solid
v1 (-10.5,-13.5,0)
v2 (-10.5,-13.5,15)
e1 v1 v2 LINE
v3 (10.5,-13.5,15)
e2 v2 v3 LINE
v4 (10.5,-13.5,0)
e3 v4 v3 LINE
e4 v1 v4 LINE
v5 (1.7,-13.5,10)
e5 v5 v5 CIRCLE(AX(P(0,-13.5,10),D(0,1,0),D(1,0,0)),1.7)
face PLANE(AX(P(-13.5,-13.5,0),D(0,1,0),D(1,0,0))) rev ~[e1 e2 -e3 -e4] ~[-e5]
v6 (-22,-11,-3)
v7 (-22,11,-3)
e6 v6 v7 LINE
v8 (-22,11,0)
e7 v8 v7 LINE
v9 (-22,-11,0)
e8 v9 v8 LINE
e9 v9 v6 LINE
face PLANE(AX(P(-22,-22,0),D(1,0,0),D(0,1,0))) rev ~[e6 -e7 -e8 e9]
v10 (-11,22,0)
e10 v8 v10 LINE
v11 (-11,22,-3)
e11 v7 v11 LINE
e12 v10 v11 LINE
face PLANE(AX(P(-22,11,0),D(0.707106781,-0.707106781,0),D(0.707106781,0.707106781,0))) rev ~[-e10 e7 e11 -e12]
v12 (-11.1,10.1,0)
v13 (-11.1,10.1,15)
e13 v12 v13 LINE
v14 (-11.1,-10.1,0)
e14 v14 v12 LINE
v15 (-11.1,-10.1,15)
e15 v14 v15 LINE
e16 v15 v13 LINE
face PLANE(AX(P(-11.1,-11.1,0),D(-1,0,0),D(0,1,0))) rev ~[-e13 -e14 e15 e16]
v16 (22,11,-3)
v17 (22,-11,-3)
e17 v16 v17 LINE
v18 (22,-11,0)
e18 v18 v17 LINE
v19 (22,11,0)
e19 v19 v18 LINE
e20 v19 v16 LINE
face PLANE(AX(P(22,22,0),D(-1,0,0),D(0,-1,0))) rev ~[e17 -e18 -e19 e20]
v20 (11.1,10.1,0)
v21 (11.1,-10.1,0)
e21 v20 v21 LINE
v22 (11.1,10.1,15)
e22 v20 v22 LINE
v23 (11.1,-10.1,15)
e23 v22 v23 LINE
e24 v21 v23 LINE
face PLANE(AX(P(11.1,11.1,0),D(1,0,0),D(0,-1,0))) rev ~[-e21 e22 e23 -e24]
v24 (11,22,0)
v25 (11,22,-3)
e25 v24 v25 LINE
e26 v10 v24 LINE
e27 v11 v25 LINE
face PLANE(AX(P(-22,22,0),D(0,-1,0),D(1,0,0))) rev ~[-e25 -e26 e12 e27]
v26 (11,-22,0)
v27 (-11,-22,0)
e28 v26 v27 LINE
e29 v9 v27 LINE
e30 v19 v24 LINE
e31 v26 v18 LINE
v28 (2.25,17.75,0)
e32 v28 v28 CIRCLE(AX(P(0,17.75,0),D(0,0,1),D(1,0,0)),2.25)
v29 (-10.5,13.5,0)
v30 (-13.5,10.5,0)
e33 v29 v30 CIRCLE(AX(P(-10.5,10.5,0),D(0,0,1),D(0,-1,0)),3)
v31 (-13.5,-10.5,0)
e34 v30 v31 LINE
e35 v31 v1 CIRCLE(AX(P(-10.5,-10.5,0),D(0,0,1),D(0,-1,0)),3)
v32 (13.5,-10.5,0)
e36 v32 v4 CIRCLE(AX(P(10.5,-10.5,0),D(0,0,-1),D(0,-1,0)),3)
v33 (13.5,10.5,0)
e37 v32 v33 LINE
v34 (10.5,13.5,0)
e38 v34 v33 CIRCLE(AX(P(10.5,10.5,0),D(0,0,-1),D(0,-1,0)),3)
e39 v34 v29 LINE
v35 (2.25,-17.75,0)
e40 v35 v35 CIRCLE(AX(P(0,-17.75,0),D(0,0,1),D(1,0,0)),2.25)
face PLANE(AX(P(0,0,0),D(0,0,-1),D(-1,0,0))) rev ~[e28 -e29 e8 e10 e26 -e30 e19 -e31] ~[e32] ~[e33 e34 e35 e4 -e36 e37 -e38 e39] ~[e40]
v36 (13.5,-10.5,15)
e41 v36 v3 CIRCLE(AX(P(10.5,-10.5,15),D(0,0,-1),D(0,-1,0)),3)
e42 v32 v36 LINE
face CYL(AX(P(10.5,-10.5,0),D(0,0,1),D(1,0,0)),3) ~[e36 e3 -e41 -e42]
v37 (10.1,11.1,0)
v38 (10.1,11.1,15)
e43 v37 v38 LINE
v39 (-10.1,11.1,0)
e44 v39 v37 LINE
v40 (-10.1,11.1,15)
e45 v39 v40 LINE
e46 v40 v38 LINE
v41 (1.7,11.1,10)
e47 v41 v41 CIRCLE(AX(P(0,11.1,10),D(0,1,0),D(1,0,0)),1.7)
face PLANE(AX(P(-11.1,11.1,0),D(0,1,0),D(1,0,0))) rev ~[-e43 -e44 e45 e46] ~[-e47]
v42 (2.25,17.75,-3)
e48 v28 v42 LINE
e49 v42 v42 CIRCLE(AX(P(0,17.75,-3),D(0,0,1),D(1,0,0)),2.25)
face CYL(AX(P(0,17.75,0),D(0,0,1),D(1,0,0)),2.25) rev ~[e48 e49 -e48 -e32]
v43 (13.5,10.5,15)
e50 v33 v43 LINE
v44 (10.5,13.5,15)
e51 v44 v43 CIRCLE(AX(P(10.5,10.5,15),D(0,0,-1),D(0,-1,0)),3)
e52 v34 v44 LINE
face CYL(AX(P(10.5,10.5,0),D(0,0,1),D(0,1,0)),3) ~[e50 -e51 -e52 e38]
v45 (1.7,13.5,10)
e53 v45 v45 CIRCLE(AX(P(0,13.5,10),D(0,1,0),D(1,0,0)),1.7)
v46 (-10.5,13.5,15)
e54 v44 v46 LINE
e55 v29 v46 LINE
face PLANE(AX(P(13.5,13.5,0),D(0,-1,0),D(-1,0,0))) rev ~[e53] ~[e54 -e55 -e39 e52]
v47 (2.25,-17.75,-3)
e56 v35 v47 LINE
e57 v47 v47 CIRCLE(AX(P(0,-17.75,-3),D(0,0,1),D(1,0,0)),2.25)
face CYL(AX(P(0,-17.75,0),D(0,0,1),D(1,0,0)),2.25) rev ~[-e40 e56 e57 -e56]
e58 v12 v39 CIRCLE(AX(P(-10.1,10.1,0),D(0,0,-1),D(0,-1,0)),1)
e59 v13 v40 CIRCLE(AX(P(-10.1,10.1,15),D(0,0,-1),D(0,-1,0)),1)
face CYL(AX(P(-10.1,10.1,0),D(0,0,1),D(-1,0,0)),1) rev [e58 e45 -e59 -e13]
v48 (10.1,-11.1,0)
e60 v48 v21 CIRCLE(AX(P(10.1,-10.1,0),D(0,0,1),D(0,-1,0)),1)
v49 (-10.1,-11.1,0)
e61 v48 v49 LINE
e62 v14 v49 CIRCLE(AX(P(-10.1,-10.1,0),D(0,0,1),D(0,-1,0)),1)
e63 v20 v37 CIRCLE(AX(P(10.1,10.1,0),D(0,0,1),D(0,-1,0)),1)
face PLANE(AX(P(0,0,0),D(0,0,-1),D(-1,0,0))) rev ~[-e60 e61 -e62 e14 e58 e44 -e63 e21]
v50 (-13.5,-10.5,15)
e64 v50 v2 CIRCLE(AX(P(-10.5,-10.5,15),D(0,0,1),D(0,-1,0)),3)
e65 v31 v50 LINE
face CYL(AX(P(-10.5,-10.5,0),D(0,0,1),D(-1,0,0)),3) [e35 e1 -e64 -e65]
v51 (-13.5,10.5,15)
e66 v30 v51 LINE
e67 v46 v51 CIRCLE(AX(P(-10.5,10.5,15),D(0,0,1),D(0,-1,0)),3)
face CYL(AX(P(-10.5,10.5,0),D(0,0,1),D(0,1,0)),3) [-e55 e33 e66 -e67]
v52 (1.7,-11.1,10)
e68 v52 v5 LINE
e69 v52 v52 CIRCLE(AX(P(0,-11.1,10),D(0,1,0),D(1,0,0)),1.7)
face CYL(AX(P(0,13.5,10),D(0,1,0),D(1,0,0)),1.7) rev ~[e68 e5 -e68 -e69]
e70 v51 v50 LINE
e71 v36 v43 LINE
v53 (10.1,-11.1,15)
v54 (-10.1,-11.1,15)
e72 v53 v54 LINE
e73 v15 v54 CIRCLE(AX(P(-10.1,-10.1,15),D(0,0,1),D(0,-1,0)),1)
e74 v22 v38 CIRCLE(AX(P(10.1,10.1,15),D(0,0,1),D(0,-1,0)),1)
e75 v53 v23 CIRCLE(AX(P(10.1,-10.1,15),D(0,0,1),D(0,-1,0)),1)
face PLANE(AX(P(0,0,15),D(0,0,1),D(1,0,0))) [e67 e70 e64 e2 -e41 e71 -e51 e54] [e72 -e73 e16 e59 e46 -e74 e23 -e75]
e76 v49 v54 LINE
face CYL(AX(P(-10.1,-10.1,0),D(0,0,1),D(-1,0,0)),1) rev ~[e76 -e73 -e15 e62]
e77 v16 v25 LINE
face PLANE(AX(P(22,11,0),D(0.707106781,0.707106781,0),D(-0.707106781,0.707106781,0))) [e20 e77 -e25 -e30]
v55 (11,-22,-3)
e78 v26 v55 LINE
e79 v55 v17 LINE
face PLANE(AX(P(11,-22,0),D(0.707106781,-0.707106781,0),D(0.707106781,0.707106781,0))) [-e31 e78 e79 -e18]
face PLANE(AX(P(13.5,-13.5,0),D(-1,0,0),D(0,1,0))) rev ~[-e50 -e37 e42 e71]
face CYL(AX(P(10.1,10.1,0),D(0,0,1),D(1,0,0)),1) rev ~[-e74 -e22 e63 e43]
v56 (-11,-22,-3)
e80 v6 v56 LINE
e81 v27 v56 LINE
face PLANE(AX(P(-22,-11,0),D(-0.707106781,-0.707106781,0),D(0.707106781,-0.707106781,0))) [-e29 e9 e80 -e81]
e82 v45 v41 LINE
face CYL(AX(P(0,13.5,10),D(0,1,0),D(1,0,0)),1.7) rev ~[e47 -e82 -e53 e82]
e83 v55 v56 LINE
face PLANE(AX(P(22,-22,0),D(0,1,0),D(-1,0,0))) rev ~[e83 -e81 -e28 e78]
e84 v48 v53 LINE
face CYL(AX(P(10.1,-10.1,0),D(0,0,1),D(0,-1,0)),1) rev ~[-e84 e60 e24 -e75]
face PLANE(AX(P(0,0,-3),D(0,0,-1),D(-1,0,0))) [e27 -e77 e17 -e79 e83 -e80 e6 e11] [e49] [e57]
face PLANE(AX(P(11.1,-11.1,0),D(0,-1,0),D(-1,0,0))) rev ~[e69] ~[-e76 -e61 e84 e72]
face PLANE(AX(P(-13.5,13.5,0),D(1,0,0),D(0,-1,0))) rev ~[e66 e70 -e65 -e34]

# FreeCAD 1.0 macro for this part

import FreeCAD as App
import Part
import Sketcher
from FreeCAD import Vector
Q = App.Units.Quantity


def edges_at(feature, points):
    """Names of the edges that pass closest to the given points."""
    edges = feature.Shape.Edges
    near = lambda p: min(range(len(edges)), key=lambda i: edges[i].distToShape(Part.Vertex(*p))[0])
    return sorted({f"Edge{near(p) + 1}" for p in points})


def add_polygon(sketch, points):
    """Adds a closed chain of lines whose ends are joined by coincident constraints."""
    first, n = sketch.GeometryCount, len(points)
    for a, b in zip(points, points[1:] + points[:1]):
        sketch.addGeometry(Part.LineSegment(App.Vector(*a, 0), App.Vector(*b, 0)), False)
    for i in range(n):
        sketch.addConstraint(Sketcher.Constraint("Coincident", first + i, 2, first + (i + 1) % n, 1))

doc = App.newDocument("Part")
body = doc.addObject("PartDesign::Body", "Body")

# Sketch on XY plane
sketch1 = body.newObject("Sketcher::SketchObject", "Sketch")
sketch1.AttachmentSupport = (doc.getObject("XY_Plane"), [""])
sketch1.MapMode = "FlatFace"
add_polygon(sketch1, [(-14, 14), (-14, -14), (14, -14), (14, 14)])  # lines 0-3
add_polygon(sketch1, [(-11, -11), (-11, 11), (11, 11), (11, -11)])  # lines 4-7
sketch1.addConstraint([
    Sketcher.Constraint("Vertical", 0),
    Sketcher.Constraint("Horizontal", 1),
    Sketcher.Constraint("Vertical", 2),
    Sketcher.Constraint("Horizontal", 3),
    Sketcher.Constraint("Vertical", 4),
    Sketcher.Constraint("Horizontal", 5),
    Sketcher.Constraint("Vertical", 6),
    Sketcher.Constraint("Horizontal", 7),
    Sketcher.Constraint("Symmetric", 0, 2, 2, 2, -1, 1),
    Sketcher.Constraint("Symmetric", 4, 2, 6, 2, -1, 1),
    Sketcher.Constraint("Equal", 3, 0),
    Sketcher.Constraint("Equal", 7, 4),
    Sketcher.Constraint("DistanceX", 1, 1, 1, 2, Q("27 mm")),
    Sketcher.Constraint("DistanceX", 5, 1, 5, 2, Q("22.2 mm")),
])
pad1 = body.newObject("PartDesign::Pad", "Pad")
pad1.Profile = sketch1
pad1.Length = 15

# Sketch on XZ plane
sketch2 = body.newObject("Sketcher::SketchObject", "Sketch001")
sketch2.AttachmentSupport = (doc.getObject("XZ_Plane"), [""])
sketch2.MapMode = "FlatFace"
sketch2.AttachmentOffset = App.Placement(Vector(0, 0, -13.5), App.Rotation())
sketch2.addGeometry(Part.Circle(Vector(0, 10, 0), Vector(0, 0, 1), 1.7), False)
sketch2.addConstraint([
    Sketcher.Constraint("PointOnObject", 0, 3, -2),
    Sketcher.Constraint("Diameter", 0, Q("3.4 mm")),
    Sketcher.Constraint("DistanceY", -1, 1, 0, 3, Q("10 mm")),
])
pocket1 = body.newObject("PartDesign::Pocket", "Pocket")
pocket1.Profile = sketch2
pocket1.Length = 30
pocket1.Reversed = True

# Sketch on XY plane
sketch3 = body.newObject("Sketcher::SketchObject", "Sketch002")
sketch3.AttachmentSupport = (doc.getObject("XY_Plane"), [""])
sketch3.MapMode = "FlatFace"
add_polygon(sketch3, [(-22, -22), (-22, 22), (22, 22), (22, -22)])  # lines 0-3
sketch3.addConstraint([
    Sketcher.Constraint("Vertical", 0),
    Sketcher.Constraint("Horizontal", 1),
    Sketcher.Constraint("Vertical", 2),
    Sketcher.Constraint("Horizontal", 3),
    Sketcher.Constraint("Symmetric", 0, 2, 2, 2, -1, 1),
    Sketcher.Constraint("Equal", 3, 0),
    Sketcher.Constraint("DistanceX", 1, 1, 1, 2, Q("44 mm")),
])
pad2 = body.newObject("PartDesign::Pad", "Pad001")
pad2.Profile = sketch3
pad2.Length = 3
pad2.Reversed = True

# Sketch on XY plane
sketch4 = body.newObject("Sketcher::SketchObject", "Sketch003")
sketch4.AttachmentSupport = (doc.getObject("XY_Plane"), [""])
sketch4.MapMode = "FlatFace"
sketch4.addGeometry([
    Part.Circle(Vector(0, 17.8, 0), Vector(0, 0, 1), 2.2),
    Part.Circle(Vector(0, -17.8, 0), Vector(0, 0, 1), 2.2),
], False)
sketch4.addConstraint([
    Sketcher.Constraint("Equal", 0, 1),
    Sketcher.Constraint("Symmetric", 0, 3, 1, 3, -1, 1),
    Sketcher.Constraint("PointOnObject", 0, 3, -2),
    Sketcher.Constraint("Diameter", 0, Q("4.5 mm")),
    Sketcher.Constraint("DistanceY", 1, 3, 0, 3, Q("35.5 mm")),
])
pocket2 = body.newObject("PartDesign::Pocket", "Pocket001")
pocket2.Profile = sketch4
pocket2.Length = 3

# Sketch on XY plane
sketch5 = body.newObject("Sketcher::SketchObject", "Sketch004")
sketch5.AttachmentSupport = (doc.getObject("XY_Plane"), [""])
sketch5.MapMode = "FlatFace"
add_polygon(sketch5, [(-11, 22), (-22, 22), (-22, 11)])  # lines 0-2
add_polygon(sketch5, [(22, 22), (11, 22), (22, 11)])  # lines 3-5
add_polygon(sketch5, [(-11, -22), (-22, -11), (-22, -22)])  # lines 6-8
add_polygon(sketch5, [(22, -22), (22, -11), (11, -22)])  # lines 9-11
sketch5.addConstraint([
    Sketcher.Constraint("Horizontal", 0),
    Sketcher.Constraint("Vertical", 1),
    Sketcher.Constraint("Horizontal", 3),
    Sketcher.Constraint("Vertical", 5),
    Sketcher.Constraint("Vertical", 7),
    Sketcher.Constraint("Horizontal", 8),
    Sketcher.Constraint("Vertical", 9),
    Sketcher.Constraint("Horizontal", 11),
    Sketcher.Constraint("Symmetric", 4, 2, 6, 2, -1, 1),
    Sketcher.Constraint("Symmetric", 3, 2, 8, 2, -1, 1),
    Sketcher.Constraint("Symmetric", 1, 2, 9, 2, -1, 1),
    Sketcher.Constraint("Symmetric", 2, 2, 10, 2, -1, 1),
    Sketcher.Constraint("Symmetric", 2, 2, 3, 2, -2),
    Sketcher.Constraint("Symmetric", 1, 2, 4, 2, -2),
    Sketcher.Constraint("Perpendicular", 2, 4),
    Sketcher.Constraint("DistanceX", 0, 2, 0, 1, Q("11 mm")),
    Sketcher.Constraint("DistanceY", -1, 1, 1, 2, Q("11 mm")),
    Sketcher.Constraint("DistanceX", 2, 2, -1, 1, Q("11 mm")),
])
pocket3 = body.newObject("PartDesign::Pocket", "Pocket002")
pocket3.Profile = sketch5
pocket3.Length = 3
doc.recompute()

fillet = body.newObject("PartDesign::Fillet", "Fillet")
fillet.Base = (pocket3, edges_at(pocket3, [
    (13.5, -13.5, 7.5),
    (13.5, 13.5, 7.5),
    (-13.5, -13.5, 7.5),
    (-13.5, 13.5, 7.5),
]))
fillet.Radius = 3
doc.recompute()

fillet2 = body.newObject("PartDesign::Fillet", "Fillet001")
fillet2.Base = (fillet, edges_at(fillet, [
    (-11.1, 11.1, 7.5),
    (-11.1, -11.1, 7.5),
    (11.1, 11.1, 7.5),
    (11.1, -11.1, 7.5),
]))
fillet2.Radius = 1

doc.recompute()
